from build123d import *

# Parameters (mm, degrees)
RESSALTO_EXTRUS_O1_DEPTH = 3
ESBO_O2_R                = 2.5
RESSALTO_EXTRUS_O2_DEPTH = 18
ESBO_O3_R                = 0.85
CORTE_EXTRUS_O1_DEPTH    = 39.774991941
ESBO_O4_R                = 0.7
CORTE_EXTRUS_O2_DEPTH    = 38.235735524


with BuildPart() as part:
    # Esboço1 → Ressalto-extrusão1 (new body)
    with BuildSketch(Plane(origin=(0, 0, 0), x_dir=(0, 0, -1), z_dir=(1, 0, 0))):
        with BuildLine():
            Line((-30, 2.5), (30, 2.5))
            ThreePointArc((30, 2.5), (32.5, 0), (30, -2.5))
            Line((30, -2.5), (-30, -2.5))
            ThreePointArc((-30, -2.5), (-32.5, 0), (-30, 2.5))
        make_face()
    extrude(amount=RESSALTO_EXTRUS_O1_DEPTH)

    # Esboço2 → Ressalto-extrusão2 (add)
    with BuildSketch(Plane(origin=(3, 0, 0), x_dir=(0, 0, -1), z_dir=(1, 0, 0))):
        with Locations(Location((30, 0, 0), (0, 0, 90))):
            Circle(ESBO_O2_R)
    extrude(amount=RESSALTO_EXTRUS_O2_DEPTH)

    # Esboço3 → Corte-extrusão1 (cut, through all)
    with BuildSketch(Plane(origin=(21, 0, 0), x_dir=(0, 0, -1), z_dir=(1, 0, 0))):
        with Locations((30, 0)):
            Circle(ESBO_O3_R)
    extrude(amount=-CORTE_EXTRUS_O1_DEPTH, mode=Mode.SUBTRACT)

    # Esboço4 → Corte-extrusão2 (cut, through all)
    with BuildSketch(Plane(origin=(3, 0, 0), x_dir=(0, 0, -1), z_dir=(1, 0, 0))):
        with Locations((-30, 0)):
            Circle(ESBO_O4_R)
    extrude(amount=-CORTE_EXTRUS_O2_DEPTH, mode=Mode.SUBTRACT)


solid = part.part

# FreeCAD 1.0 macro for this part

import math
import FreeCAD as App
import Part
import Sketcher

doc = App.newDocument("Part")
body = doc.addObject("PartDesign::Body", "Body")

# Sketch on YZ plane
sketch1 = body.newObject("Sketcher::SketchObject", "Sketch")
sketch1.AttachmentSupport = (doc.getObject("YZ_Plane"), [""])
sketch1.MapMode = "FlatFace"
sketch1.addGeometry([
    Part.LineSegment(App.Vector(2.5, -30, 0), App.Vector(2.5, 30, 0)),
    Part.ArcOfCircle(Part.Circle(App.Vector(0, 30, 0), App.Vector(0, 0, 1), 2.5), math.radians(0), math.radians(180)),
    Part.LineSegment(App.Vector(-2.5, 30, 0), App.Vector(-2.5, -30, 0)),
    Part.ArcOfCircle(Part.Circle(App.Vector(0, -30, 0), App.Vector(0, 0, 1), 2.5), math.radians(180), math.radians(360)),
], False)
sketch1.addConstraint([
    Sketcher.Constraint("Tangent", 0, 2, 1, 1),
    Sketcher.Constraint("Tangent", 1, 2, 2, 1),
    Sketcher.Constraint("Tangent", 2, 2, 3, 1),
    Sketcher.Constraint("Tangent", 3, 2, 0, 1),
    Sketcher.Constraint("Vertical", 0),
    Sketcher.Constraint("Vertical", 2),
    Sketcher.Constraint("Symmetric", 1, 3, 3, 3, -1, 1),
    Sketcher.Constraint("Radius", 1, 2.5),
    Sketcher.Constraint("DistanceY", 0, 1, 0, 2, 60.0),
])
pad1 = body.newObject("PartDesign::Pad", "Pad")
pad1.Profile = sketch1
pad1.Length = 3

# Sketch on YZ plane
sketch2 = body.newObject("Sketcher::SketchObject", "Sketch001")
sketch2.AttachmentSupport = (doc.getObject("YZ_Plane"), [""])
sketch2.MapMode = "FlatFace"
sketch2.AttachmentOffset = App.Placement(App.Vector(0, 0, 3), App.Rotation())
sketch2.addGeometry(Part.Circle(App.Vector(0, -30, 0), App.Vector(0, 0, 1), 2.5), False)
sketch2.addConstraint([
    Sketcher.Constraint("PointOnObject", 0, 3, -2),
    Sketcher.Constraint("Diameter", 0, 5.0),
    Sketcher.Constraint("DistanceY", 0, 3, -1, 1, 30.0),
])
pad2 = body.newObject("PartDesign::Pad", "Pad001")
pad2.Profile = sketch2
pad2.Length = 18

# Sketch on YZ plane
sketch3 = body.newObject("Sketcher::SketchObject", "Sketch002")
sketch3.AttachmentSupport = (doc.getObject("YZ_Plane"), [""])
sketch3.MapMode = "FlatFace"
sketch3.AttachmentOffset = App.Placement(App.Vector(0, 0, 21), App.Rotation())
sketch3.addGeometry(Part.Circle(App.Vector(0, -30, 0), App.Vector(0, 0, 1), 0.8), False)
sketch3.addConstraint([
    Sketcher.Constraint("PointOnObject", 0, 3, -2),
    Sketcher.Constraint("Diameter", 0, 1.7),
    Sketcher.Constraint("DistanceY", 0, 3, -1, 1, 30.0),
])
pocket1 = body.newObject("PartDesign::Pocket", "Pocket")
pocket1.Profile = sketch3
pocket1.Type = "ThroughAll"

# Sketch on YZ plane
sketch4 = body.newObject("Sketcher::SketchObject", "Sketch003")
sketch4.AttachmentSupport = (doc.getObject("YZ_Plane"), [""])
sketch4.MapMode = "FlatFace"
sketch4.AttachmentOffset = App.Placement(App.Vector(0, 0, 3), App.Rotation())
sketch4.addGeometry(Part.Circle(App.Vector(0, 30, 0), App.Vector(0, 0, 1), 0.7), False)
sketch4.addConstraint([
    Sketcher.Constraint("PointOnObject", 0, 3, -2),
    Sketcher.Constraint("Diameter", 0, 1.4),
    Sketcher.Constraint("DistanceY", -1, 1, 0, 3, 30.0),
])
pocket2 = body.newObject("PartDesign::Pocket", "Pocket001")
pocket2.Profile = sketch4
pocket2.Type = "ThroughAll"

doc.recompute()
